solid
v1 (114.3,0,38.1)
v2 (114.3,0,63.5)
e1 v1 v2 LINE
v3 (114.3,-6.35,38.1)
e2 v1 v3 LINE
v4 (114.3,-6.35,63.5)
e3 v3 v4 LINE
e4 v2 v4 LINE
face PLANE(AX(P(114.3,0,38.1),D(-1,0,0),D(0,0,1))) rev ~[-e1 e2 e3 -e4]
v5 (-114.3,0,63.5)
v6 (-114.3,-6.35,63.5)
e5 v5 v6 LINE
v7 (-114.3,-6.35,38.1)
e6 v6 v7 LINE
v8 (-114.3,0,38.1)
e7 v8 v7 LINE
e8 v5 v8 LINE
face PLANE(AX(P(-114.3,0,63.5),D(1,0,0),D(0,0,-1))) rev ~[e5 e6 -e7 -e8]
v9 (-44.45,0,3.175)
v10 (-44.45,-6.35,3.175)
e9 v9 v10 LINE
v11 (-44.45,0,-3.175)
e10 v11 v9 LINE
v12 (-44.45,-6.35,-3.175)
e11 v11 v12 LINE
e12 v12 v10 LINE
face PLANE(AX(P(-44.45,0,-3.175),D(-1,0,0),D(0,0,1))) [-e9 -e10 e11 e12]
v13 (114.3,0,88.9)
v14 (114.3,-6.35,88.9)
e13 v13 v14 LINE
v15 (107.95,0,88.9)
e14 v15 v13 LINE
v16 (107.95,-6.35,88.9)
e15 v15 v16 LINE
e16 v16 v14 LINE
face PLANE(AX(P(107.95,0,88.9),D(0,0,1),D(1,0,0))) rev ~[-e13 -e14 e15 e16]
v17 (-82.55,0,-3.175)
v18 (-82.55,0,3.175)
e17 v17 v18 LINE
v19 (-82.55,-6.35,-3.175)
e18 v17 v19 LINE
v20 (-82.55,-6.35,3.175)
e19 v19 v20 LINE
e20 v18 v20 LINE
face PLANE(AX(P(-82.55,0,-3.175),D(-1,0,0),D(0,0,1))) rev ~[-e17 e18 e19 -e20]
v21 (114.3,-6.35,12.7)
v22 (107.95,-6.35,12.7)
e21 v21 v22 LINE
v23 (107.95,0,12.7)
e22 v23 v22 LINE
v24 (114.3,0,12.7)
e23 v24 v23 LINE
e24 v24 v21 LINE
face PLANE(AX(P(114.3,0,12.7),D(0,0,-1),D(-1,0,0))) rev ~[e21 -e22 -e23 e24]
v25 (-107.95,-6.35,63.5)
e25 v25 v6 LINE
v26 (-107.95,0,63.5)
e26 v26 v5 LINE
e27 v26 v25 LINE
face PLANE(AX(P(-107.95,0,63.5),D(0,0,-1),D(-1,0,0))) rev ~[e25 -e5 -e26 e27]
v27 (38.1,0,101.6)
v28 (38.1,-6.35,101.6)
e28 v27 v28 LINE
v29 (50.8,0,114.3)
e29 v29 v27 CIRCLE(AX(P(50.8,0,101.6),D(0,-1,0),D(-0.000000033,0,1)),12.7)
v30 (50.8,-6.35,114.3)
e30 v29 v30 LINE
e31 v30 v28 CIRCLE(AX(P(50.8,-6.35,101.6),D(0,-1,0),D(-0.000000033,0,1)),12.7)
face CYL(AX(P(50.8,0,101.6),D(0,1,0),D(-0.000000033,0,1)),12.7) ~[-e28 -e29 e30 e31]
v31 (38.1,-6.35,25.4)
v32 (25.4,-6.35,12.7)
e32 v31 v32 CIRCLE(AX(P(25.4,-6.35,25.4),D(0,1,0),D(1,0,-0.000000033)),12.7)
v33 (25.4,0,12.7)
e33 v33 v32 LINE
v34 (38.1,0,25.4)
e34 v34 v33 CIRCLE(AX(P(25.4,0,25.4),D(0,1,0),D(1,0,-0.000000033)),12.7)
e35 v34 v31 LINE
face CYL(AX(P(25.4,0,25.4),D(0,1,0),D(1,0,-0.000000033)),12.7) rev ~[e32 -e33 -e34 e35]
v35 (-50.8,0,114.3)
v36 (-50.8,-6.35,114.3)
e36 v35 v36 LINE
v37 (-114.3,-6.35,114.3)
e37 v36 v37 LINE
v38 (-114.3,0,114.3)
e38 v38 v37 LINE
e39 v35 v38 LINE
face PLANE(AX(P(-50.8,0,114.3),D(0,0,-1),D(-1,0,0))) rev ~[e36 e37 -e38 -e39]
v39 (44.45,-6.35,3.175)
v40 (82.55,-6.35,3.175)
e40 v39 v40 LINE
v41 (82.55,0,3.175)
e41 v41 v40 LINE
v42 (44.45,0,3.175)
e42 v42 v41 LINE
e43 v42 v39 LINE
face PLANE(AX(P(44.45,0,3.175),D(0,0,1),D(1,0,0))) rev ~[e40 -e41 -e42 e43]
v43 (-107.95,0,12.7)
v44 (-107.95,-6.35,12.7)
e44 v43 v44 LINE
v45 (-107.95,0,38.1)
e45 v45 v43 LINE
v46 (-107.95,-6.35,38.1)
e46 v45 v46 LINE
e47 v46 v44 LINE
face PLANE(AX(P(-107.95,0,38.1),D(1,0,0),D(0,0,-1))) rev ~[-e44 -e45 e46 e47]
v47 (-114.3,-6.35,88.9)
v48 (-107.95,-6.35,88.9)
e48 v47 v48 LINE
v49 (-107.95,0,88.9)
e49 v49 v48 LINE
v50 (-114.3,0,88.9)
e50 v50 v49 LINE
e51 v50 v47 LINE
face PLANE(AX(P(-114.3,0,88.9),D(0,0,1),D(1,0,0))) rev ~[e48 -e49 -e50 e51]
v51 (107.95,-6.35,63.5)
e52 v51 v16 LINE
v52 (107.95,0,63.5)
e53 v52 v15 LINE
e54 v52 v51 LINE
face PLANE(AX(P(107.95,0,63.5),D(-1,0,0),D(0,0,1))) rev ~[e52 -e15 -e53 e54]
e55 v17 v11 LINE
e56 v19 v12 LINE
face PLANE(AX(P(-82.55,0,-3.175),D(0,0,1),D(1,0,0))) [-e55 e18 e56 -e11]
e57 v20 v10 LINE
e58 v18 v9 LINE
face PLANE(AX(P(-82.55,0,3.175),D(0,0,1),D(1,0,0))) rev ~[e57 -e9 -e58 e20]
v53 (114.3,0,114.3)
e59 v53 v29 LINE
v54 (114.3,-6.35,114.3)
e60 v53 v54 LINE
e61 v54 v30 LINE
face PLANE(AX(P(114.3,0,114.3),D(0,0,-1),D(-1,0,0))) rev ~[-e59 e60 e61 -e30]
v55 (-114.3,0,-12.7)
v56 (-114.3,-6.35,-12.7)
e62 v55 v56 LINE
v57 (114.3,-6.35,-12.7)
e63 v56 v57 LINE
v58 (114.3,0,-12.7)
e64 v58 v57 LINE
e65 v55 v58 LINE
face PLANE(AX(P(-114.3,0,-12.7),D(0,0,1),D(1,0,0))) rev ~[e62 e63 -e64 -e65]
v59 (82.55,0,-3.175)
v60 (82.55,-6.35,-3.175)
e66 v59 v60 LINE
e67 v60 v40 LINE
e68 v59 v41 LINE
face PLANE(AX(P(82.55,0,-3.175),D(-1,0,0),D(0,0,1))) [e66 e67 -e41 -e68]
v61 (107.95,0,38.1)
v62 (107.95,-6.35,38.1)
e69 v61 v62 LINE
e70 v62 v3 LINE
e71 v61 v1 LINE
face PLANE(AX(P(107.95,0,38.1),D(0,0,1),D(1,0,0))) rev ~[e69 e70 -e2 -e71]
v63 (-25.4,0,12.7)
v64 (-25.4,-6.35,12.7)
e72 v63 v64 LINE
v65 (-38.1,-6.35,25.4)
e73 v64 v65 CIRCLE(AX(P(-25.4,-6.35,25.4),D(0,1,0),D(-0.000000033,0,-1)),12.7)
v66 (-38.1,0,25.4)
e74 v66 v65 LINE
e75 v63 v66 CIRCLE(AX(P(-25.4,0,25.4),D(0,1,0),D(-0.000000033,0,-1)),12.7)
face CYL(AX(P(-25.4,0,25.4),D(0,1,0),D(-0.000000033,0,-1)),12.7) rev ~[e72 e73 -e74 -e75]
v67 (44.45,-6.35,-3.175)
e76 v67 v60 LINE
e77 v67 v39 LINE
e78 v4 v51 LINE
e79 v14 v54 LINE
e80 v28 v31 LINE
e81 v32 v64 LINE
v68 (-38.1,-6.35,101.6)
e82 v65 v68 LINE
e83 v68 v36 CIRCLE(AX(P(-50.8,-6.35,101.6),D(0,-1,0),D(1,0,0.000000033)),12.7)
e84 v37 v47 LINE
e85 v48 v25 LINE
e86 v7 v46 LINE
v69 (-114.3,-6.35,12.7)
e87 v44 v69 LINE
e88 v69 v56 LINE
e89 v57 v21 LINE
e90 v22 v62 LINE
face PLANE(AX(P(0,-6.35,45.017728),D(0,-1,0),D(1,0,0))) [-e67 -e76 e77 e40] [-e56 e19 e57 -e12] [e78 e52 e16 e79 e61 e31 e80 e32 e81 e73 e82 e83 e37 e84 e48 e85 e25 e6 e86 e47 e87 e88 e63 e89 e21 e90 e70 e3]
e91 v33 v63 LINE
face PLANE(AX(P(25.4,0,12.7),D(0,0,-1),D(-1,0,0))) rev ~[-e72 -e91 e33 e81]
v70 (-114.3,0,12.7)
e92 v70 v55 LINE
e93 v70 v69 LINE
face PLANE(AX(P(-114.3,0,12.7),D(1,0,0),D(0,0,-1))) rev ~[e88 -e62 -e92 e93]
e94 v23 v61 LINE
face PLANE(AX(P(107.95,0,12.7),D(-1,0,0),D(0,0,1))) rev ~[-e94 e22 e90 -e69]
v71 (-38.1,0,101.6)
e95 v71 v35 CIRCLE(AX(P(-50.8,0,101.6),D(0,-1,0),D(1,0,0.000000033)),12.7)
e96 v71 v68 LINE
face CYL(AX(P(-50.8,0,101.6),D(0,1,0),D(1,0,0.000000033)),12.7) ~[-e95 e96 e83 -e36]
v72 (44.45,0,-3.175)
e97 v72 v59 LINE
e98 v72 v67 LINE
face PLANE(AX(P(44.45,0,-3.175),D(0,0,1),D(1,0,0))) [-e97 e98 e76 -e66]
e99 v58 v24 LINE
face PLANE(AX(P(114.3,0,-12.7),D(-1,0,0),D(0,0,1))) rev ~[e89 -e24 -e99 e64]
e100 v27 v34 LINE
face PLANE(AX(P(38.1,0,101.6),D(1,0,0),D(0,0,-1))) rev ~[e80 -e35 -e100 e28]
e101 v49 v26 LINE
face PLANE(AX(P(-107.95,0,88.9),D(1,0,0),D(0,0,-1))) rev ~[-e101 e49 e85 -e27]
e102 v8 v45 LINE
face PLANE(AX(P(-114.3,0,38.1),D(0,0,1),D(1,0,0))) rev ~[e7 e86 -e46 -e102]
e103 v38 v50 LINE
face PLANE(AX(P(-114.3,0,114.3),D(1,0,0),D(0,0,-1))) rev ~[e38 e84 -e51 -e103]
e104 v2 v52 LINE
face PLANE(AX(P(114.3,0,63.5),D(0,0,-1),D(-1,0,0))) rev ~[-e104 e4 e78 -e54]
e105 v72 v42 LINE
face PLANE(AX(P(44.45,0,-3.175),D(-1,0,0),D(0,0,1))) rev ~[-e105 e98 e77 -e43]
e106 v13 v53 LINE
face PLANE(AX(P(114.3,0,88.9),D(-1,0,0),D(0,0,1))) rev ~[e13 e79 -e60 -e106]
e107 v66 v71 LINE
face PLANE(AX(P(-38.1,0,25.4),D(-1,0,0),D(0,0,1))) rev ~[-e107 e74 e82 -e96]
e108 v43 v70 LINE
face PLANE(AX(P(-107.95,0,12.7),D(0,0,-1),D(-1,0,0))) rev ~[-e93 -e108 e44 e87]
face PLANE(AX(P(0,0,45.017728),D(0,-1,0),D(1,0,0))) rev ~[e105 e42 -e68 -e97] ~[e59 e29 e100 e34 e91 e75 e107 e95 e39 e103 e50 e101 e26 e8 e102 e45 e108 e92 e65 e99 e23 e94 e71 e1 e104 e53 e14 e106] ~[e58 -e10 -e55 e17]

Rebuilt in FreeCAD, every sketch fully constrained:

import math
import FreeCAD as App
import Part
import Sketcher
from FreeCAD import Vector
Q = App.Units.Quantity


def add_polygon(sketch, points):
    """Adds a closed chain of lines whose ends are joined by coincident constraints."""
    first, n = sketch.GeometryCount, len(points)
    for a, b in zip(points, points[1:] + points[:1]):
        sketch.addGeometry(Part.LineSegment(App.Vector(*a, 0), App.Vector(*b, 0)), False)
    for i in range(n):
        sketch.addConstraint(Sketcher.Constraint("Coincident", first + i, 2, first + (i + 1) % n, 1))

doc = App.newDocument("Part")
body = doc.addObject("PartDesign::Body", "Body")

# Sketch on XZ plane
sketch1 = body.newObject("Sketcher::SketchObject", "Sketch")
sketch1.AttachmentSupport = (doc.getObject("XZ_Plane"), [""])
sketch1.MapMode = "FlatFace"
sketch1.addGeometry(Part.LineSegment(Vector(-114.3, -12.7, 0), Vector(114.3, -12.7, 0)), False)  # 0
sketch1.addGeometry(Part.LineSegment(Vector(114.3, -12.7, 0), Vector(114.3, 12.7, 0)), False)  # 1
sketch1.addGeometry(Part.LineSegment(Vector(114.3, 12.7, 0), Vector(107.95, 12.7, 0)), False)  # 2
sketch1.addGeometry(Part.LineSegment(Vector(107.95, 12.7, 0), Vector(107.95, 38.1, 0)), False)  # 3
sketch1.addGeometry(Part.LineSegment(Vector(107.95, 38.1, 0), Vector(114.3, 38.1, 0)), False)  # 4
sketch1.addGeometry(Part.LineSegment(Vector(114.3, 38.1, 0), Vector(114.3, 63.5, 0)), False)  # 5
sketch1.addGeometry(Part.LineSegment(Vector(114.3, 63.5, 0), Vector(107.95, 63.5, 0)), False)  # 6
sketch1.addGeometry(Part.LineSegment(Vector(107.95, 63.5, 0), Vector(107.95, 88.9, 0)), False)  # 7
sketch1.addGeometry(Part.LineSegment(Vector(107.95, 88.9, 0), Vector(114.3, 88.9, 0)), False)  # 8
sketch1.addGeometry(Part.LineSegment(Vector(114.3, 88.9, 0), Vector(114.3, 114.3, 0)), False)  # 9
sketch1.addGeometry(Part.LineSegment(Vector(114.3, 114.3, 0), Vector(50.8, 114.3, 0)), False)  # 10
sketch1.addGeometry(Part.ArcOfCircle(Part.Circle(Vector(50.8, 101.6, 0), Vector(0, 0, 1), 12.7), math.radians(90.000002), math.radians(179.999998)), False)  # 11
sketch1.addGeometry(Part.LineSegment(Vector(38.1, 101.6, 0), Vector(38.1, 25.4, 0)), False)  # 12
sketch1.addGeometry(Part.ArcOfCircle(Part.Circle(Vector(25.4, 25.4, 0), Vector(0, 0, 1), 12.7), math.radians(-89.999998), math.radians(-0.000002)), False)  # 13
sketch1.addGeometry(Part.LineSegment(Vector(25.4, 12.7, 0), Vector(-25.4, 12.7, 0)), False)  # 14
sketch1.addGeometry(Part.ArcOfCircle(Part.Circle(Vector(-25.4, 25.4, 0), Vector(0, 0, 1), 12.7), math.radians(-179.999998), math.radians(-90.000002)), False)  # 15
sketch1.addGeometry(Part.LineSegment(Vector(-38.1, 25.4, 0), Vector(-38.1, 101.6, 0)), False)  # 16
sketch1.addGeometry(Part.ArcOfCircle(Part.Circle(Vector(-50.8, 101.6, 0), Vector(0, 0, 1), 12.7), math.radians(0.000002), math.radians(89.999998)), False)  # 17
sketch1.addGeometry(Part.LineSegment(Vector(-50.8, 114.3, 0), Vector(-114.3, 114.3, 0)), False)  # 18
sketch1.addGeometry(Part.LineSegment(Vector(-114.3, 114.3, 0), Vector(-114.3, 88.9, 0)), False)  # 19
sketch1.addGeometry(Part.LineSegment(Vector(-114.3, 88.9, 0), Vector(-107.95, 88.9, 0)), False)  # 20
sketch1.addGeometry(Part.LineSegment(Vector(-107.95, 88.9, 0), Vector(-107.95, 63.5, 0)), False)  # 21
sketch1.addGeometry(Part.LineSegment(Vector(-107.95, 63.5, 0), Vector(-114.3, 63.5, 0)), False)  # 22
sketch1.addGeometry(Part.LineSegment(Vector(-114.3, 63.5, 0), Vector(-114.3, 38.1, 0)), False)  # 23
sketch1.addGeometry(Part.LineSegment(Vector(-114.3, 38.1, 0), Vector(-107.95, 38.1, 0)), False)  # 24
sketch1.addGeometry(Part.LineSegment(Vector(-107.95, 38.1, 0), Vector(-107.95, 12.7, 0)), False)  # 25
sketch1.addGeometry(Part.LineSegment(Vector(-107.95, 12.7, 0), Vector(-114.3, 12.7, 0)), False)  # 26
sketch1.addGeometry(Part.LineSegment(Vector(-114.3, 12.7, 0), Vector(-114.3, -12.7, 0)), False)  # 27
add_polygon(sketch1, [(-44.45, -3.175), (-82.55, -3.175), (-82.55, 3.175), (-44.45, 3.175)])  # lines 28-31
add_polygon(sketch1, [(82.55, -3.175), (44.45, -3.175), (44.45, 3.175), (82.55, 3.175)])  # lines 32-35
sketch1.addConstraint(Sketcher.Constraint("Coincident", 0, 2, 1, 1))
sketch1.addConstraint(Sketcher.Constraint("Coincident", 1, 2, 2, 1))
sketch1.addConstraint(Sketcher.Constraint("Coincident", 2, 2, 3, 1))
sketch1.addConstraint(Sketcher.Constraint("Coincident", 3, 2, 4, 1))
sketch1.addConstraint(Sketcher.Constraint("Coincident", 4, 2, 5, 1))
sketch1.addConstraint(Sketcher.Constraint("Coincident", 5, 2, 6, 1))
sketch1.addConstraint(Sketcher.Constraint("Coincident", 6, 2, 7, 1))
sketch1.addConstraint(Sketcher.Constraint("Coincident", 7, 2, 8, 1))
sketch1.addConstraint(Sketcher.Constraint("Coincident", 8, 2, 9, 1))
sketch1.addConstraint(Sketcher.Constraint("Coincident", 9, 2, 10, 1))
sketch1.addConstraint(Sketcher.Constraint("Tangent", 10, 2, 11, 1))
sketch1.addConstraint(Sketcher.Constraint("Tangent", 11, 2, 12, 1))
sketch1.addConstraint(Sketcher.Constraint("Tangent", 12, 2, 13, 2))
sketch1.addConstraint(Sketcher.Constraint("Tangent", 13, 1, 14, 1))
sketch1.addConstraint(Sketcher.Constraint("Tangent", 14, 2, 15, 2))
sketch1.addConstraint(Sketcher.Constraint("Tangent", 15, 1, 16, 1))
sketch1.addConstraint(Sketcher.Constraint("Tangent", 16, 2, 17, 1))
sketch1.addConstraint(Sketcher.Constraint("Tangent", 17, 2, 18, 1))
sketch1.addConstraint(Sketcher.Constraint("Coincident", 18, 2, 19, 1))
sketch1.addConstraint(Sketcher.Constraint("Coincident", 19, 2, 20, 1))
sketch1.addConstraint(Sketcher.Constraint("Coincident", 20, 2, 21, 1))
sketch1.addConstraint(Sketcher.Constraint("Coincident", 21, 2, 22, 1))
sketch1.addConstraint(Sketcher.Constraint("Coincident", 22, 2, 23, 1))
sketch1.addConstraint(Sketcher.Constraint("Coincident", 23, 2, 24, 1))
sketch1.addConstraint(Sketcher.Constraint("Coincident", 24, 2, 25, 1))
sketch1.addConstraint(Sketcher.Constraint("Coincident", 25, 2, 26, 1))
sketch1.addConstraint(Sketcher.Constraint("Coincident", 26, 2, 27, 1))
sketch1.addConstraint(Sketcher.Constraint("Coincident", 27, 2, 0, 1))
sketch1.addConstraint(Sketcher.Constraint("Horizontal", 0))
sketch1.addConstraint(Sketcher.Constraint("Vertical", 1))
sketch1.addConstraint(Sketcher.Constraint("Horizontal", 2))
sketch1.addConstraint(Sketcher.Constraint("Vertical", 3))
sketch1.addConstraint(Sketcher.Constraint("Horizontal", 4))
sketch1.addConstraint(Sketcher.Constraint("Vertical", 5))
sketch1.addConstraint(Sketcher.Constraint("Horizontal", 6))
sketch1.addConstraint(Sketcher.Constraint("Vertical", 7))
sketch1.addConstraint(Sketcher.Constraint("Horizontal", 8))
sketch1.addConstraint(Sketcher.Constraint("Vertical", 9))
sketch1.addConstraint(Sketcher.Constraint("Horizontal", 10))
sketch1.addConstraint(Sketcher.Constraint("Vertical", 12))
sketch1.addConstraint(Sketcher.Constraint("Horizontal", 14))
sketch1.addConstraint(Sketcher.Constraint("Vertical", 16))
sketch1.addConstraint(Sketcher.Constraint("Horizontal", 18))
sketch1.addConstraint(Sketcher.Constraint("Vertical", 19))
sketch1.addConstraint(Sketcher.Constraint("Horizontal", 20))
sketch1.addConstraint(Sketcher.Constraint("Vertical", 21))
sketch1.addConstraint(Sketcher.Constraint("Horizontal", 22))
sketch1.addConstraint(Sketcher.Constraint("Vertical", 23))
sketch1.addConstraint(Sketcher.Constraint("Horizontal", 24))
sketch1.addConstraint(Sketcher.Constraint("Vertical", 25))
sketch1.addConstraint(Sketcher.Constraint("Horizontal", 26))
sketch1.addConstraint(Sketcher.Constraint("Vertical", 27))
sketch1.addConstraint(Sketcher.Constraint("Horizontal", 28))
sketch1.addConstraint(Sketcher.Constraint("Vertical", 29))
sketch1.addConstraint(Sketcher.Constraint("Horizontal", 30))
sketch1.addConstraint(Sketcher.Constraint("Vertical", 31))
sketch1.addConstraint(Sketcher.Constraint("Horizontal", 32))
sketch1.addConstraint(Sketcher.Constraint("Vertical", 33))
sketch1.addConstraint(Sketcher.Constraint("Horizontal", 34))
sketch1.addConstraint(Sketcher.Constraint("Vertical", 35))
sketch1.addConstraint(Sketcher.Constraint("Equal", 11, 13))
sketch1.addConstraint(Sketcher.Constraint("Equal", 13, 15))
sketch1.addConstraint(Sketcher.Constraint("Equal", 15, 17))
sketch1.addConstraint(Sketcher.Constraint("Symmetric", 0, 2, 26, 2, -1, 1))
sketch1.addConstraint(Sketcher.Constraint("Symmetric", 30, 2, 32, 2, -1, 1))
sketch1.addConstraint(Sketcher.Constraint("Symmetric", 28, 2, 34, 2, -1, 1))
sketch1.addConstraint(Sketcher.Constraint("Symmetric", 11, 3, 17, 3, -2))
sketch1.addConstraint(Sketcher.Constraint("Symmetric", 8, 2, 19, 2, -2))
sketch1.addConstraint(Sketcher.Constraint("Symmetric", 6, 2, 21, 2, -2))
sketch1.addConstraint(Sketcher.Constraint("Symmetric", 4, 2, 23, 2, -2))
sketch1.addConstraint(Sketcher.Constraint("Symmetric", 2, 2, 25, 2, -2))
sketch1.addConstraint(Sketcher.Constraint("Horizontal", 2, 2, 13, 1))
sketch1.addConstraint(Sketcher.Constraint("Horizontal", 31, 2, 32, 2))
sketch1.addConstraint(Sketcher.Constraint("Vertical", 1, 2, 4, 2))
sketch1.addConstraint(Sketcher.Constraint("Vertical", 3, 2, 6, 2))
sketch1.addConstraint(Sketcher.Constraint("Vertical", 5, 2, 8, 2))
sketch1.addConstraint(Sketcher.Constraint("Equal", 1, 3))
sketch1.addConstraint(Sketcher.Constraint("Equal", 3, 5))
sketch1.addConstraint(Sketcher.Constraint("Equal", 5, 7))
sketch1.addConstraint(Sketcher.Constraint("Equal", 7, 9))
sketch1.addConstraint(Sketcher.Constraint("Equal", 26, 29))
sketch1.addConstraint(Sketcher.Constraint("Radius", 11, Q("0.5 in")))
sketch1.addConstraint(Sketcher.Constraint("DistanceX", 0, 1, 0, 2, Q("9 in")))
sketch1.addConstraint(Sketcher.Constraint("DistanceX", 14, 2, 14, 1, Q("2 in")))
sketch1.addConstraint(Sketcher.Constraint("DistanceY", 1, 1, 1, 2, Q("1 in")))
sketch1.addConstraint(Sketcher.Constraint("DistanceX", 28, 2, 28, 1, Q("1.5 in")))
sketch1.addConstraint(Sketcher.Constraint("DistanceX", 25, 2, 28, 2, Q("1 in")))
sketch1.addConstraint(Sketcher.Constraint("DistanceX", 2, 2, 2, 1, Q("0.25 in")))
pad1 = body.newObject("PartDesign::Pad", "Pad")
pad1.Profile = sketch1
pad1.Length = Q("0.25 in")

doc.recompute()
